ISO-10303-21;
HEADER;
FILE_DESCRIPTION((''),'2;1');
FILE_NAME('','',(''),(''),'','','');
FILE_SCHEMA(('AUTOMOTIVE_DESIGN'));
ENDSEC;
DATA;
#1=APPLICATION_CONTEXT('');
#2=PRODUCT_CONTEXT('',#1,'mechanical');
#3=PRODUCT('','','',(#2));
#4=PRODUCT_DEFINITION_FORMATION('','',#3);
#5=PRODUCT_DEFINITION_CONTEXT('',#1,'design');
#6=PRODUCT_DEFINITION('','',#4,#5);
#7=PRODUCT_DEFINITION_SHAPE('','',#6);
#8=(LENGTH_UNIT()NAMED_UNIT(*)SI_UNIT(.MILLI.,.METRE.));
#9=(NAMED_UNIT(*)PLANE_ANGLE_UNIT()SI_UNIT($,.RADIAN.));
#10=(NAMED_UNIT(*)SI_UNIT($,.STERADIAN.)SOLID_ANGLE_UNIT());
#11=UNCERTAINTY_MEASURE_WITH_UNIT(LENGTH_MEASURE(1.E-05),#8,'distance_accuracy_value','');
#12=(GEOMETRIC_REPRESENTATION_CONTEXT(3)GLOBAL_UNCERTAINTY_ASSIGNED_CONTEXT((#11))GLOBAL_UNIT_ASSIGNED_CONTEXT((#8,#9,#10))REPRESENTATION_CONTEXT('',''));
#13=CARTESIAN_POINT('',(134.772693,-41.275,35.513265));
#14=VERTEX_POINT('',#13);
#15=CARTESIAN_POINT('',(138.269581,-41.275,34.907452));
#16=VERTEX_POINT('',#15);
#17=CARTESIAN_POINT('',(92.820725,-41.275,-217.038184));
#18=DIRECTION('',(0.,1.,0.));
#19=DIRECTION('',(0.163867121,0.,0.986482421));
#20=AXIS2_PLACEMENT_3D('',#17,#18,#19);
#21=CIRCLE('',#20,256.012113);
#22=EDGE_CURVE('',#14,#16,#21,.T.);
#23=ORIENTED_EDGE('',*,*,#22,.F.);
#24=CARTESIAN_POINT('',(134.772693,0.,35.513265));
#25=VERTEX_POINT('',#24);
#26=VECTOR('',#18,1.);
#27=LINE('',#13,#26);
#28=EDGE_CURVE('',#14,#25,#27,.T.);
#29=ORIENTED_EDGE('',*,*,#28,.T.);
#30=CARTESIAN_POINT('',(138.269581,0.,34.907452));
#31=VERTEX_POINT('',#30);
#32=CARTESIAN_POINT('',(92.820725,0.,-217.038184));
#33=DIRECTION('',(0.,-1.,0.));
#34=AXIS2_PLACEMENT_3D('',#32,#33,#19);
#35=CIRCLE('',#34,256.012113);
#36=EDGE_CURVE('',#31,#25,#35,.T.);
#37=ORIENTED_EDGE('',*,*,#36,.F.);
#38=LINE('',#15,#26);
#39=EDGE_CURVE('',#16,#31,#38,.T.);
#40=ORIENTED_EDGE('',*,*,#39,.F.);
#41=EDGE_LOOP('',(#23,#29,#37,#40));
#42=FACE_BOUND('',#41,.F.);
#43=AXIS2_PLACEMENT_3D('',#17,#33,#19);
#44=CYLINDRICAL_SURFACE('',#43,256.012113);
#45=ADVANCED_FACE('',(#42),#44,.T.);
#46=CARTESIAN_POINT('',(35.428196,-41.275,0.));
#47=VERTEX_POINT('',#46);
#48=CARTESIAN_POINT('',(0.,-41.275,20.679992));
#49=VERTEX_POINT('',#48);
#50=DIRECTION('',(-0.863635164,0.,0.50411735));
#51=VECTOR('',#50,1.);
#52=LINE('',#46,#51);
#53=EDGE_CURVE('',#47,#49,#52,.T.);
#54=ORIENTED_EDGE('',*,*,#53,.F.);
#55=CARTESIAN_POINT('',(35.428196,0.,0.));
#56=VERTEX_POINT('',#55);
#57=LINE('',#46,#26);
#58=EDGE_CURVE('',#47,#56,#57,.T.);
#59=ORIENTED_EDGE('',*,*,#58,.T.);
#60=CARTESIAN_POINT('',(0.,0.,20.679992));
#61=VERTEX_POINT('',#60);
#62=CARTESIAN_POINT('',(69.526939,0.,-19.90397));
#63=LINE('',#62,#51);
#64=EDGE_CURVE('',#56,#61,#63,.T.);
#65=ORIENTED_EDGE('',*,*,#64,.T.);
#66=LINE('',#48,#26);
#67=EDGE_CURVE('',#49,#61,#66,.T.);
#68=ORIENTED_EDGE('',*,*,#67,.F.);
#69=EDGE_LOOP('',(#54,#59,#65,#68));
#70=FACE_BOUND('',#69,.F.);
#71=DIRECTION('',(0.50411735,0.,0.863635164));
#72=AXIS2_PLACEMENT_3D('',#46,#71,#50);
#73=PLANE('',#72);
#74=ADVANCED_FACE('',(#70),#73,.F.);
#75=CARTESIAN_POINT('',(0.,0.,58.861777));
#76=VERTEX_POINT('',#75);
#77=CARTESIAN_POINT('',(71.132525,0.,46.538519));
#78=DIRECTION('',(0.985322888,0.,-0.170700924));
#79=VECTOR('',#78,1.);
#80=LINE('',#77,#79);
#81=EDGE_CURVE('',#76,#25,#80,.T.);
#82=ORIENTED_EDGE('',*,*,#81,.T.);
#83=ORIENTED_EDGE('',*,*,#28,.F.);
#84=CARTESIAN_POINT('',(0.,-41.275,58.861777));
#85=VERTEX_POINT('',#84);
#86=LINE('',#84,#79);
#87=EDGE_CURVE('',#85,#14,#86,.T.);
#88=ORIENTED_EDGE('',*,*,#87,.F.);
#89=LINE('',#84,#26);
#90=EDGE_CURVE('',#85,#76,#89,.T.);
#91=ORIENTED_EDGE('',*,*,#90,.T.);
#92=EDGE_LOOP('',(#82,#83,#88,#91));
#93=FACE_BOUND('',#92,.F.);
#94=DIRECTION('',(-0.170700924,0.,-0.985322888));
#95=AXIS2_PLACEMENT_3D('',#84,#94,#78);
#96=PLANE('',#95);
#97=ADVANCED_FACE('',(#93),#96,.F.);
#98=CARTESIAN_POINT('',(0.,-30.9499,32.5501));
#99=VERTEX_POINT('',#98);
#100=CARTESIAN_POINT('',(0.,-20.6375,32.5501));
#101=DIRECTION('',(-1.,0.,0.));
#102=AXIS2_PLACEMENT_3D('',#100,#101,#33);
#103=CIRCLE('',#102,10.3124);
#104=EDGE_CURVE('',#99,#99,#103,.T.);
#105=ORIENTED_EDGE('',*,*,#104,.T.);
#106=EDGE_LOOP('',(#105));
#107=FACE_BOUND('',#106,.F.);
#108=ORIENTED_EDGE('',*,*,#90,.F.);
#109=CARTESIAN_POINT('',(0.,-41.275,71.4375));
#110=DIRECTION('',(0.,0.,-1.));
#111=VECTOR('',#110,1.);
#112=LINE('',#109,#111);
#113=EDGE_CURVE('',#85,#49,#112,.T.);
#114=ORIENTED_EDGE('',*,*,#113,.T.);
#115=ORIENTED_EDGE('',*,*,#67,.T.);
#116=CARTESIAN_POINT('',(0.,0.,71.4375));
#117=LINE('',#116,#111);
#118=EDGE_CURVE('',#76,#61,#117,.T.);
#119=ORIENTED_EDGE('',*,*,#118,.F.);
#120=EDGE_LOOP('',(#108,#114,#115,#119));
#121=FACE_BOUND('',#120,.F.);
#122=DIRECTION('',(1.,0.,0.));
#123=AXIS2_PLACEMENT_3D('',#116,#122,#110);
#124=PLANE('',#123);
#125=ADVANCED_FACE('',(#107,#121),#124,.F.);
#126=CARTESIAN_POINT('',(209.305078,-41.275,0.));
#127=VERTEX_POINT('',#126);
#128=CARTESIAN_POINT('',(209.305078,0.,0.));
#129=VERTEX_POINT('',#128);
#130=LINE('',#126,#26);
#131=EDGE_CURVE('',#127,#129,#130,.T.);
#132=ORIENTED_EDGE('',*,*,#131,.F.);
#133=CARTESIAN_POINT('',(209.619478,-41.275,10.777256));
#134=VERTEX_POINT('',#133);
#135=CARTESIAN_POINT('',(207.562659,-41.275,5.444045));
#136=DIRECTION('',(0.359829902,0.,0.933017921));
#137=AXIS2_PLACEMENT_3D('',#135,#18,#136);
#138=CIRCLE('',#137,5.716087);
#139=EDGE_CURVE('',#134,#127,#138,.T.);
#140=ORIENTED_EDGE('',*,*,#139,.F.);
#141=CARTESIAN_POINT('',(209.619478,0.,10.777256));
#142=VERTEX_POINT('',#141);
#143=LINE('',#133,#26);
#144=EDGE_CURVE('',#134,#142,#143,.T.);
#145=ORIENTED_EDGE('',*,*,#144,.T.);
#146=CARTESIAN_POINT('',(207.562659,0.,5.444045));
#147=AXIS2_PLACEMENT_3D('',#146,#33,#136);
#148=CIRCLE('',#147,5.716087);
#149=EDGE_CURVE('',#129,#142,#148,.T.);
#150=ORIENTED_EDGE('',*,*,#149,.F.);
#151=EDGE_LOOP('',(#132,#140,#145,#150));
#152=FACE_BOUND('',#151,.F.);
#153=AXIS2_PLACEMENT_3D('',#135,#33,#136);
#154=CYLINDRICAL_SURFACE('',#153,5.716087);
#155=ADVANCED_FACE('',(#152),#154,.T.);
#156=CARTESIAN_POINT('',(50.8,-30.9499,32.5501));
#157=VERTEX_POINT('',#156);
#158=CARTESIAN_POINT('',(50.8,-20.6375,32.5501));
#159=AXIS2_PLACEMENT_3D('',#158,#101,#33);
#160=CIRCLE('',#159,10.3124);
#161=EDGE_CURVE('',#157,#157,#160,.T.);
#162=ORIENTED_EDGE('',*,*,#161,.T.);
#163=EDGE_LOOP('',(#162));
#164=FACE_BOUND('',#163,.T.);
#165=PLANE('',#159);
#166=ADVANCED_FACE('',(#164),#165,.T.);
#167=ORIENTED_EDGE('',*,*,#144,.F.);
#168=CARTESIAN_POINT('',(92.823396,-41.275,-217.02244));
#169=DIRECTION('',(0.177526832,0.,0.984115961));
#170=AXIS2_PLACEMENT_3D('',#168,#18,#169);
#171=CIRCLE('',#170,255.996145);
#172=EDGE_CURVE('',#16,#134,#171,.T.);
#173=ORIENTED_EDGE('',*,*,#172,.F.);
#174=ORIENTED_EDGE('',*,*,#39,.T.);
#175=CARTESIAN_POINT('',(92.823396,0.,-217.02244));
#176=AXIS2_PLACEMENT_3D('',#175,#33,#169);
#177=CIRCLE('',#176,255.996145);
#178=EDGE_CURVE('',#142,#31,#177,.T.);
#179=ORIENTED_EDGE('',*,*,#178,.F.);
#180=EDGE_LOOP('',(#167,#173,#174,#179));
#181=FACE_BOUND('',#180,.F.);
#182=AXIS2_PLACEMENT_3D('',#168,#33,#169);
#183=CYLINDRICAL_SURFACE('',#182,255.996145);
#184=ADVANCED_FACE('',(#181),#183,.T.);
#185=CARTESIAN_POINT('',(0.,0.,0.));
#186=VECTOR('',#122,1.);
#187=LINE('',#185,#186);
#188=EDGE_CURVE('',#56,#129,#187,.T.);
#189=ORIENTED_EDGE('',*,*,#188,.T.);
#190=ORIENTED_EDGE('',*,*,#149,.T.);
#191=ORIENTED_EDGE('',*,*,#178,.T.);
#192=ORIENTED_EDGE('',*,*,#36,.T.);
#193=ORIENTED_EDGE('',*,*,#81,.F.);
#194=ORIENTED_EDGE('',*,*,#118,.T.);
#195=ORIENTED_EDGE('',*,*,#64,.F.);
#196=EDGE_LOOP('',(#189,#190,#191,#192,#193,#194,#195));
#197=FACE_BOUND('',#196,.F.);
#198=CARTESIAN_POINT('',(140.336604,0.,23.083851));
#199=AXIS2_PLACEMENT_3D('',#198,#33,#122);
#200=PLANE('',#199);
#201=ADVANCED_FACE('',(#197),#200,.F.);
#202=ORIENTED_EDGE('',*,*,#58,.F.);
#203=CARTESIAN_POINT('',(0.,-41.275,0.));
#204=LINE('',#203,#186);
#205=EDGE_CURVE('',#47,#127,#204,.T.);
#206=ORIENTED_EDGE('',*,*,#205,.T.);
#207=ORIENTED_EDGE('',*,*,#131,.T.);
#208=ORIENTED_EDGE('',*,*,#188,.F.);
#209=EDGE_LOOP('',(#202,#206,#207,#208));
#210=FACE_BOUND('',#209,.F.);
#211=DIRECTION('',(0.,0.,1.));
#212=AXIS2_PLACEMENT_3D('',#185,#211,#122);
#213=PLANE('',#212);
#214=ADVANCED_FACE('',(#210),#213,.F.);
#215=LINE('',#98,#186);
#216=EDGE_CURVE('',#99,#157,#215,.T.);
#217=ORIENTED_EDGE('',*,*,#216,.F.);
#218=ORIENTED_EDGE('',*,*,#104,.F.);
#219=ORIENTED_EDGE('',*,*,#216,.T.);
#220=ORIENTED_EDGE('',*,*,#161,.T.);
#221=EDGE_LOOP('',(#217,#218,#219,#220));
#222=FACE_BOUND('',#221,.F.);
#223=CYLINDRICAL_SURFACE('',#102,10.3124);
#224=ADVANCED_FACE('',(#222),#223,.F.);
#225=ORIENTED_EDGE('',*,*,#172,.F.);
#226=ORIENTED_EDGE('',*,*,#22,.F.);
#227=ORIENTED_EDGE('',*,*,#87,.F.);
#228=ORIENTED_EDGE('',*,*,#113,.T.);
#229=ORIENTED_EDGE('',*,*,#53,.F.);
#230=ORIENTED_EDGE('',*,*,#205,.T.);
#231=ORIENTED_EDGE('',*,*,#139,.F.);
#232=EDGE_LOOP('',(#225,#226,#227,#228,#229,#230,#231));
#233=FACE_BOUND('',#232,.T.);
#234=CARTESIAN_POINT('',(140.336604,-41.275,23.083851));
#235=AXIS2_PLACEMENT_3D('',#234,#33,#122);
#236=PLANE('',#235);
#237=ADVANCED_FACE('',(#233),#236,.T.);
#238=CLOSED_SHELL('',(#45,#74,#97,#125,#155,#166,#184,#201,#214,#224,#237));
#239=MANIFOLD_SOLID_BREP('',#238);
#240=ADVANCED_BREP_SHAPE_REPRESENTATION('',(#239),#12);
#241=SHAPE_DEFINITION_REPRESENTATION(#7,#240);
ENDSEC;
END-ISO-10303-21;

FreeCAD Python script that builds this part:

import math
import FreeCAD as App
import Part
import Sketcher
Q = App.Units.Quantity

doc = App.newDocument("Part")
body = doc.addObject("PartDesign::Body", "Body")

# Sketch on XZ plane
sketch1 = doc.addObject("Sketcher::SketchObject", "Sketch")
body.addObject(sketch1)
sketch1.AttachmentSupport = (doc.XZ_Plane, [""])
sketch1.MapMode = "FlatFace"
sketch1.addGeometry([
    Part.LineSegment(App.Vector(0, 71, 0), App.Vector(0, 0, 0)),
    Part.LineSegment(App.Vector(0, 0, 0), App.Vector(305, 0, 0)),
    Part.LineSegment(App.Vector(305, 0, 0), App.Vector(305, 16, 0)),
    Part.LineSegment(App.Vector(305, 16, 0), App.Vector(0, 71, 0)),
], False)
sketch1.addConstraint([
    Sketcher.Constraint("Coincident", 0, 2, 1, 1),
    Sketcher.Constraint("Coincident", 1, 2, 2, 1),
    Sketcher.Constraint("Coincident", 2, 2, 3, 1),
    Sketcher.Constraint("Coincident", 3, 2, 0, 1),
    Sketcher.Constraint("Vertical", 0),
    Sketcher.Constraint("Horizontal", 1),
    Sketcher.Constraint("Vertical", 2),
    Sketcher.Constraint("Coincident", 0, 2, -1, 1),
    Sketcher.Constraint("DistanceX", 1, 1, 1, 2, Q("12 in")),
    Sketcher.Constraint("DistanceY", 0, 2, 0, 1, Q("2.8125 in")),
    Sketcher.Constraint("DistanceY", 2, 1, 2, 2, Q("0.625 in")),
])
pad1 = doc.addObject("PartDesign::Pad", "Pad")
body.addObject(pad1)
pad1.Profile = sketch1
pad1.Length = Q("1.625 in")

# Sketch on YZ plane
sketch2 = doc.addObject("Sketcher::SketchObject", "Sketch001")
body.addObject(sketch2)
sketch2.AttachmentSupport = (doc.YZ_Plane, [""])
sketch2.MapMode = "FlatFace"
sketch2.addGeometry(Part.Circle(App.Vector(-21, 33, 0), App.Vector(0, 0, 1), 10), False)
sketch2.addConstraint([
    Sketcher.Constraint("Diameter", 0, Q("0.812 in")),
    Sketcher.Constraint("DistanceX", 0, 3, -1, 1, Q("0.8125 in")),
    Sketcher.Constraint("DistanceY", -1, 1, 0, 3, Q("1.2815 in")),
])
pocket1 = doc.addObject("PartDesign::Pocket", "Pocket")
body.addObject(pocket1)
pocket1.Profile = sketch2
pocket1.Length = Q("2 in")
pocket1.Reversed = True

# Sketch on XZ plane
sketch3 = doc.addObject("Sketcher::SketchObject", "Sketch002")
body.addObject(sketch3)
sketch3.AttachmentSupport = (doc.XZ_Plane, [""])
sketch3.MapMode = "FlatFace"
sketch3.AttachmentOffset = App.Placement(App.Vector(0, 0, 1.625 * 25.4), App.Rotation())
sketch3.addGeometry([
    Part.LineSegment(App.Vector(35.428196, 0, 0), App.Vector(0, 20.679992, 0)),  # 0
    Part.LineSegment(App.Vector(0, 20.679992, 0), App.Vector(0, 0, 0)),  # 1
    Part.LineSegment(App.Vector(0, 0, 0), App.Vector(35.428196, 0, 0)),  # 2
    Part.ArcOfCircle(Part.Circle(App.Vector(92.823396, -217.02244, 0), App.Vector(0, 0, 1), 255.996145), math.radians(62.855153), math.radians(79.774262)),  # 3
    Part.ArcOfCircle(Part.Circle(App.Vector(207.562659, 5.444045, 0), App.Vector(0, 0, 1), 5.716087), math.radians(-72.25223), math.radians(68.91025)),  # 4
    Part.LineSegment(App.Vector(209.305078, 0, 0), App.Vector(304.8, 0, 0)),  # 5
    Part.LineSegment(App.Vector(304.8, 0, 0), App.Vector(304.8, 15.875, 0)),  # 6
    Part.LineSegment(App.Vector(304.8, 15.875, 0), App.Vector(0, 71.4375, 0)),  # 7
    Part.LineSegment(App.Vector(0, 71.4375, 0), App.Vector(0, 58.861777, 0)),  # 8
    Part.LineSegment(App.Vector(0, 58.861777, 0), App.Vector(134.772693, 35.513265, 0)),  # 9
    Part.ArcOfCircle(Part.Circle(App.Vector(92.820725, -217.038184, 0), App.Vector(0, 0, 1), 256.012113), math.radians(79.774299), math.radians(80.56857)),  # 10
], False)
sketch3.addConstraint([
    Sketcher.Constraint("Coincident", 0, 2, 1, 1),
    Sketcher.Constraint("Coincident", 1, 2, 2, 1),
    Sketcher.Constraint("Coincident", 2, 2, 0, 1),
    Sketcher.Constraint("Coincident", 3, 1, 4, 2),
    Sketcher.Constraint("Coincident", 4, 1, 5, 1),
    Sketcher.Constraint("Coincident", 5, 2, 6, 1),
    Sketcher.Constraint("Coincident", 6, 2, 7, 1),
    Sketcher.Constraint("Coincident", 7, 2, 8, 1),
    Sketcher.Constraint("Coincident", 8, 2, 9, 1),
    Sketcher.Constraint("Coincident", 9, 2, 10, 2),
    Sketcher.Constraint("Coincident", 10, 1, 3, 2),
    Sketcher.Constraint("Vertical", 1),
    Sketcher.Constraint("Horizontal", 2),
    Sketcher.Constraint("Horizontal", 5),
    Sketcher.Constraint("Vertical", 6),
    Sketcher.Constraint("Vertical", 8),
    Sketcher.Constraint("Coincident", 1, 2, -1, 1),
    Sketcher.Constraint("PointOnObject", 4, 1, -1),
    Sketcher.Constraint("PointOnObject", 7, 2, -2),
    Sketcher.Constraint("DistanceX", -1, 1, 5, 2, Q("12 in")),
    Sketcher.Constraint("DistanceY", 6, 1, 6, 2, Q("0.625 in")),
    Sketcher.Constraint("DistanceY", -1, 1, 7, 2, Q("2.8125 in")),
    Sketcher.Constraint("Radius", 3, Q("255.996145 mm")),
    Sketcher.Constraint("Radius", 4, Q("5.716087 mm")),
    Sketcher.Constraint("Radius", 10, Q("256.012113 mm")),
    Sketcher.Constraint("DistanceY", 1, 2, 1, 1, Q("20.679992 mm")),
    Sketcher.Constraint("DistanceX", 2, 2, 3, 3, Q("57.3952 mm")),
    Sketcher.Constraint("DistanceX", 4, 1, 3, 1, Q("0.3144 mm")),
    Sketcher.Constraint("Distance", 0, Q("41.022179 mm")),
    Sketcher.Constraint("Distance", 9, Q("136.780232 mm")),
    Sketcher.Constraint("DistanceX", 5, 1, 5, 2, Q("95.494922 mm")),
    Sketcher.Constraint("DistanceY", 8, 2, 8, 1, Q("12.575723 mm")),
    Sketcher.Constraint("DistanceY", 3, 3, -1, 1, Q("217.02244 mm")),
    Sketcher.Constraint("DistanceX", -1, 1, 10, 1, Q("138.269581 mm")),
    Sketcher.Constraint("DistanceX", 10, 3, 3, 3, Q("0.002671 mm")),
])
pocket2 = doc.addObject("PartDesign::Pocket", "Pocket001")
body.addObject(pocket2)
pocket2.Profile = sketch3
pocket2.Type = "ThroughAll"

doc.recompute()
